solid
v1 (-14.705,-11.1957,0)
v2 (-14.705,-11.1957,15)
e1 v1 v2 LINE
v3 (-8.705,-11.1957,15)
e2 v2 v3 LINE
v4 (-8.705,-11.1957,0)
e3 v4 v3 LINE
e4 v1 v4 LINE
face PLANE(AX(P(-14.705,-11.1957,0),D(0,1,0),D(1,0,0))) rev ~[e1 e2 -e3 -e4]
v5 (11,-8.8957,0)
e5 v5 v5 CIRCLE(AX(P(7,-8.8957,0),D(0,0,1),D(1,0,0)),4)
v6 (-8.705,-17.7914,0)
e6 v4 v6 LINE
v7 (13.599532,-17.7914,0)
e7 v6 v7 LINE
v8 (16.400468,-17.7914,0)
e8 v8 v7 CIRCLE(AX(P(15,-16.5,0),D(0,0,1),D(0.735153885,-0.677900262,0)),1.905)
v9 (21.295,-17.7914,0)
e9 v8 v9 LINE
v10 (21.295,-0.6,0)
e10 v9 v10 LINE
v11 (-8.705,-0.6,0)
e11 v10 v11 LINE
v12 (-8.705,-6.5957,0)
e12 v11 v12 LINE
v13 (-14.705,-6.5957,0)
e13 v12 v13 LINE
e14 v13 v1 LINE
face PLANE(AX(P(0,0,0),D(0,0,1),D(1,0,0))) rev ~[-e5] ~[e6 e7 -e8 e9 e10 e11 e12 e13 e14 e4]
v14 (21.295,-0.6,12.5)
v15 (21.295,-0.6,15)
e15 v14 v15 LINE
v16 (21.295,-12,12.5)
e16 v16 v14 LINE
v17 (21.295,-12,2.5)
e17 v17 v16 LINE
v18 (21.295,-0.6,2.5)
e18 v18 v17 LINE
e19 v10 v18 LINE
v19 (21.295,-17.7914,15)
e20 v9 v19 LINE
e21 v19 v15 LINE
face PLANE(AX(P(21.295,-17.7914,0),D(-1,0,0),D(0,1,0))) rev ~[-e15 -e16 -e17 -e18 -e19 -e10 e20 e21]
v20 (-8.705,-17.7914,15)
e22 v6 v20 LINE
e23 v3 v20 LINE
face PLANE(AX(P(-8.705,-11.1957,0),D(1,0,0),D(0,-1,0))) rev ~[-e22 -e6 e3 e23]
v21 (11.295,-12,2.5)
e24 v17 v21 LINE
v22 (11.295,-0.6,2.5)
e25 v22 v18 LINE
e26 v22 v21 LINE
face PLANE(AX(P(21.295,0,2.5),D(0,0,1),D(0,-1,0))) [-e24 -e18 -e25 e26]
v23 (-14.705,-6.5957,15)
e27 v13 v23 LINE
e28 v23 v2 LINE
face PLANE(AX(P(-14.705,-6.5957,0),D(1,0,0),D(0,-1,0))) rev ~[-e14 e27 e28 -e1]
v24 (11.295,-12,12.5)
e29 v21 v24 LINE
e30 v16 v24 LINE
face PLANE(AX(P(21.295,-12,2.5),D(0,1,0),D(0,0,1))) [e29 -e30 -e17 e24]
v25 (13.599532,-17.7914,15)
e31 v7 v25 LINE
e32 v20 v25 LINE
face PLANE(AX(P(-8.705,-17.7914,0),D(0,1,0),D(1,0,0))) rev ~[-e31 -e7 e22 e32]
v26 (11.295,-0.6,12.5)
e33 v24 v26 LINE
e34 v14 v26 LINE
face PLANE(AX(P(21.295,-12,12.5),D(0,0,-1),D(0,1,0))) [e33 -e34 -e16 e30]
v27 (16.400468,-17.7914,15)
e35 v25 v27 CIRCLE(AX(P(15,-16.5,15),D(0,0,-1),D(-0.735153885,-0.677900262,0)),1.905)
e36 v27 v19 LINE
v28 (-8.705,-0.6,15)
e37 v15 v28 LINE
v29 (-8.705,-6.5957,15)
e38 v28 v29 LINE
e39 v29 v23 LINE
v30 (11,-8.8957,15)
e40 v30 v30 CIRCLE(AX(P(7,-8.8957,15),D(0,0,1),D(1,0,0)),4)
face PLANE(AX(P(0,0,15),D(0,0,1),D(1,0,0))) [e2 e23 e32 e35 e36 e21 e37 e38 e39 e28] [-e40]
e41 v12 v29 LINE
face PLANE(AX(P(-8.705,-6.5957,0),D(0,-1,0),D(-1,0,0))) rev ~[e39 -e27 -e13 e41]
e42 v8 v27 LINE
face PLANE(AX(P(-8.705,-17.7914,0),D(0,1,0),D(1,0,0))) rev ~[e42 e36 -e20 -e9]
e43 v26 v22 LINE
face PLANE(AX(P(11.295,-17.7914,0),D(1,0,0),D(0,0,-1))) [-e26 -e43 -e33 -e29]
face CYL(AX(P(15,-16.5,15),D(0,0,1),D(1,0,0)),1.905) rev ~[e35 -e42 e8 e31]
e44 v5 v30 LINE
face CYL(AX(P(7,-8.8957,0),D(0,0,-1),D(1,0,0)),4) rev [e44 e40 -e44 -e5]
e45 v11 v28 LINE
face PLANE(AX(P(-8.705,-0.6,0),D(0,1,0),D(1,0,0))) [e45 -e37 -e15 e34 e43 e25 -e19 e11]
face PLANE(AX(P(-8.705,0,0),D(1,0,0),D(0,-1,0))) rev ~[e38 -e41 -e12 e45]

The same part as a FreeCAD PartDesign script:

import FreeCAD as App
import Part
import Sketcher

V = App.Vector
Q = App.Units.Quantity

doc = App.newDocument("Part")
body = doc.addObject("PartDesign::Body", "Body")

sketch1 = body.newObject("Sketcher::SketchObject", "Sketch")
sketch1.AttachmentSupport = (doc.getObject("XY_Plane"), [""])
sketch1.MapMode = "FlatFace"
sketch1.addGeometry(Part.LineSegment(V(-14.7, -6.6, 0), V(-14.7, -11.2, 0)), False)
sketch1.addGeometry(Part.LineSegment(V(-14.7, -11.2, 0), V(-8.7, -11.2, 0)), False)
sketch1.addGeometry(Part.LineSegment(V(-8.7, -11.2, 0), V(-8.7, -17.8, 0)), False)
sketch1.addGeometry(Part.LineSegment(V(-8.7, -17.8, 0), V(21.3, -17.8, 0)), False)
sketch1.addGeometry(Part.LineSegment(V(21.3, -17.8, 0), V(21.3, 0, 0)), False)
sketch1.addGeometry(Part.LineSegment(V(21.3, 0, 0), V(-8.7, 0, 0)), False)
sketch1.addGeometry(Part.LineSegment(V(-8.7, 0, 0), V(-8.7, -6.6, 0)), False)
sketch1.addGeometry(Part.LineSegment(V(-8.7, -6.6, 0), V(-14.7, -6.6, 0)), False)
sketch1.addGeometry(Part.Circle(V(7, -8.9, 0), V(0, 0, 1), 4), False)
sketch1.addConstraint(Sketcher.Constraint("Coincident", 0, 2, 1, 1))
sketch1.addConstraint(Sketcher.Constraint("Coincident", 1, 2, 2, 1))
sketch1.addConstraint(Sketcher.Constraint("Coincident", 2, 2, 3, 1))
sketch1.addConstraint(Sketcher.Constraint("Coincident", 3, 2, 4, 1))
sketch1.addConstraint(Sketcher.Constraint("Coincident", 4, 2, 5, 1))
sketch1.addConstraint(Sketcher.Constraint("Coincident", 5, 2, 6, 1))
sketch1.addConstraint(Sketcher.Constraint("Coincident", 6, 2, 7, 1))
sketch1.addConstraint(Sketcher.Constraint("Coincident", 7, 2, 0, 1))
sketch1.addConstraint(Sketcher.Constraint("Vertical", 0))
sketch1.addConstraint(Sketcher.Constraint("Horizontal", 1))
sketch1.addConstraint(Sketcher.Constraint("Vertical", 2))
sketch1.addConstraint(Sketcher.Constraint("Horizontal", 3))
sketch1.addConstraint(Sketcher.Constraint("Vertical", 4))
sketch1.addConstraint(Sketcher.Constraint("Horizontal", 5))
sketch1.addConstraint(Sketcher.Constraint("Vertical", 6))
sketch1.addConstraint(Sketcher.Constraint("Horizontal", 7))
sketch1.addConstraint(Sketcher.Constraint("PointOnObject", 4, 2, -1))
sketch1.addConstraint(Sketcher.Constraint("Vertical", 2, 2, 5, 2))
sketch1.addConstraint(Sketcher.Constraint("Equal", 2, 6))
sketch1.addConstraint(Sketcher.Constraint("Diameter", 8, Q("8 mm")))
sketch1.addConstraint(Sketcher.Constraint("DistanceX", 1, 1, 1, 2, Q("6 mm")))
sketch1.addConstraint(Sketcher.Constraint("DistanceX", 3, 1, 3, 2, Q("30 mm")))
sketch1.addConstraint(Sketcher.Constraint("DistanceY", 0, 2, 0, 1, Q("4.6 mm")))
sketch1.addConstraint(Sketcher.Constraint("DistanceX", -1, 1, 8, 3, Q("7 mm")))
sketch1.addConstraint(Sketcher.Constraint("DistanceY", 0, 2, 8, 3, Q("2.3 mm")))
sketch1.addConstraint(Sketcher.Constraint("DistanceY", 2, 2, 2, 1, Q("6.5957 mm")))
sketch1.addConstraint(Sketcher.Constraint("DistanceX", 0, 2, -1, 1, Q("14.705 mm")))
pad1 = body.newObject("PartDesign::Pad", "Pad")
pad1.Profile = sketch1
pad1.Length = 15

sketch2 = body.newObject("Sketcher::SketchObject", "Sketch001")
sketch2.AttachmentSupport = (doc.getObject("XY_Plane"), [""])
sketch2.MapMode = "FlatFace"
sketch2.AttachmentOffset = App.Placement(V(0, 0, 15), App.Rotation())
sketch2.addGeometry(Part.Circle(V(15, -16.5, 0), V(0, 0, 1), 1.9), False)
sketch2.addConstraint(Sketcher.Constraint("Diameter", 0, Q("3.81 mm")))
sketch2.addConstraint(Sketcher.Constraint("DistanceX", -1, 1, 0, 3, Q("15 mm")))
sketch2.addConstraint(Sketcher.Constraint("DistanceY", 0, 3, -1, 1, Q("16.5 mm")))
pocket1 = body.newObject("PartDesign::Pocket", "Pocket")
pocket1.Profile = sketch2
pocket1.Type = "ThroughAll"

sketch3 = body.newObject("Sketcher::SketchObject", "Sketch002")
sketch3.AttachmentSupport = (doc.getObject("YZ_Plane"), [""])
sketch3.MapMode = "FlatFace"
sketch3.AttachmentOffset = App.Placement(V(0, 0, 21.295), App.Rotation())
sketch3.addGeometry(Part.LineSegment(V(-12, 12, 0), V(-12, 2, 0)), False)
sketch3.addGeometry(Part.LineSegment(V(-12, 2, 0), V(0, 2, 0)), False)
sketch3.addGeometry(Part.LineSegment(V(0, 2, 0), V(0, 12, 0)), False)
sketch3.addGeometry(Part.LineSegment(V(0, 12, 0), V(-12, 12, 0)), False)
sketch3.addConstraint(Sketcher.Constraint("Coincident", 0, 2, 1, 1))
sketch3.addConstraint(Sketcher.Constraint("Coincident", 1, 2, 2, 1))
sketch3.addConstraint(Sketcher.Constraint("Coincident", 2, 2, 3, 1))
sketch3.addConstraint(Sketcher.Constraint("Coincident", 3, 2, 0, 1))
sketch3.addConstraint(Sketcher.Constraint("Vertical", 0))
sketch3.addConstraint(Sketcher.Constraint("Horizontal", 1))
sketch3.addConstraint(Sketcher.Constraint("Vertical", 2))
sketch3.addConstraint(Sketcher.Constraint("Horizontal", 3))
sketch3.addConstraint(Sketcher.Constraint("PointOnObject", 1, 2, -2))
sketch3.addConstraint(Sketcher.Constraint("DistanceX", 1, 1, 1, 2, Q("12 mm")))
sketch3.addConstraint(Sketcher.Constraint("DistanceY", 0, 2, 0, 1, Q("10 mm")))
sketch3.addConstraint(Sketcher.Constraint("DistanceY", -1, 1, 0, 2, Q("2.5 mm")))
pocket2 = body.newObject("PartDesign::Pocket", "Pocket001")
pocket2.Profile = sketch3
pocket2.Length = 10

sketch4 = body.newObject("Sketcher::SketchObject", "Sketch003")
sketch4.AttachmentSupport = (doc.getObject("XZ_Plane"), [""])
sketch4.MapMode = "FlatFace"
sketch4.addGeometry(Part.LineSegment(V(21.3, 15, 0), V(21.3, 12.5, 0)), False)
sketch4.addGeometry(Part.LineSegment(V(21.3, 12.5, 0), V(11.3, 12.5, 0)), False)
sketch4.addGeometry(Part.LineSegment(V(11.3, 12.5, 0), V(11.3, 2.5, 0)), False)
sketch4.addGeometry(Part.LineSegment(V(11.3, 2.5, 0), V(21.3, 2.5, 0)), False)
sketch4.addGeometry(Part.LineSegment(V(21.3, 2.5, 0), V(21.3, 0, 0)), False)
sketch4.addGeometry(Part.LineSegment(V(21.3, 0, 0), V(-8.7, 0, 0)), False)
sketch4.addGeometry(Part.LineSegment(V(-8.7, 0, 0), V(-8.7, 15, 0)), False)
sketch4.addGeometry(Part.LineSegment(V(-8.7, 15, 0), V(21.3, 15, 0)), False)
sketch4.addConstraint(Sketcher.Constraint("Coincident", 0, 2, 1, 1))
sketch4.addConstraint(Sketcher.Constraint("Coincident", 1, 2, 2, 1))
sketch4.addConstraint(Sketcher.Constraint("Coincident", 2, 2, 3, 1))
sketch4.addConstraint(Sketcher.Constraint("Coincident", 3, 2, 4, 1))
sketch4.addConstraint(Sketcher.Constraint("Coincident", 4, 2, 5, 1))
sketch4.addConstraint(Sketcher.Constraint("Coincident", 5, 2, 6, 1))
sketch4.addConstraint(Sketcher.Constraint("Coincident", 6, 2, 7, 1))
sketch4.addConstraint(Sketcher.Constraint("Coincident", 7, 2, 0, 1))
sketch4.addConstraint(Sketcher.Constraint("Vertical", 0))
sketch4.addConstraint(Sketcher.Constraint("Horizontal", 1))
sketch4.addConstraint(Sketcher.Constraint("Vertical", 2))
sketch4.addConstraint(Sketcher.Constraint("Horizontal", 3))
sketch4.addConstraint(Sketcher.Constraint("Vertical", 4))
sketch4.addConstraint(Sketcher.Constraint("Horizontal", 5))
sketch4.addConstraint(Sketcher.Constraint("Vertical", 6))
sketch4.addConstraint(Sketcher.Constraint("Horizontal", 7))
sketch4.addConstraint(Sketcher.Constraint("PointOnObject", 4, 2, -1))
sketch4.addConstraint(Sketcher.Constraint("Vertical", 0, 2, 3, 2))
sketch4.addConstraint(Sketcher.Constraint("Equal", 3, 2))
sketch4.addConstraint(Sketcher.Constraint("Equal", 0, 4))
sketch4.addConstraint(Sketcher.Constraint("DistanceX", 1, 2, 1, 1, Q("10 mm")))
sketch4.addConstraint(Sketcher.Constraint("DistanceX", 5, 2, 5, 1, Q("30 mm")))
sketch4.addConstraint(Sketcher.Constraint("DistanceY", 6, 1, 6, 2, Q("15 mm")))
sketch4.addConstraint(Sketcher.Constraint("DistanceX", -1, 1, 0, 2, Q("21.295 mm")))
pocket3 = body.newObject("PartDesign::Pocket", "Pocket002")
pocket3.Profile = sketch4
pocket3.Length = 0.6
pocket3.Reversed = True

doc.recompute()
